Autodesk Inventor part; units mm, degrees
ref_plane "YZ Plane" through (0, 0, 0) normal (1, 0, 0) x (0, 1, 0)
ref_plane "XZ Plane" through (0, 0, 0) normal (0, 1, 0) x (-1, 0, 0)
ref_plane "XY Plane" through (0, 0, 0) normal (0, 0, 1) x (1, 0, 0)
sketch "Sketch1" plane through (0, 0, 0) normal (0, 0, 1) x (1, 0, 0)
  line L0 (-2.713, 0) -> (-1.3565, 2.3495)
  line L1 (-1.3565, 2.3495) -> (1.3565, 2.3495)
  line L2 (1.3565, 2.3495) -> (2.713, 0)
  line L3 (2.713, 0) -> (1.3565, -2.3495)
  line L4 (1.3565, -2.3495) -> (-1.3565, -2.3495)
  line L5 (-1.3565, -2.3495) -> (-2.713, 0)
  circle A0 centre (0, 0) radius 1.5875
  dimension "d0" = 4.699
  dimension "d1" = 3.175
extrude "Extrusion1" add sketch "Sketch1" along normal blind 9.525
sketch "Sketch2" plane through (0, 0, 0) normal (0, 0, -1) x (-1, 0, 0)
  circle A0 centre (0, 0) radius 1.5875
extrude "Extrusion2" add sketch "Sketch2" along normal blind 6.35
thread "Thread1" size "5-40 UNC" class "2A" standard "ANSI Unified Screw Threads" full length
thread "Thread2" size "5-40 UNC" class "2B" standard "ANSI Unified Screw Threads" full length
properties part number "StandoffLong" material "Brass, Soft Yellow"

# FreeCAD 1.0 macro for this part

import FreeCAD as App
import Part
import Sketcher

V = App.Vector
Q = App.Units.Quantity

doc = App.newDocument("Part")
body = doc.addObject("PartDesign::Body", "Body")
body.AllowCompound = True

sketch1 = body.newObject("Sketcher::SketchObject", "Sketch")
sketch1.AttachmentSupport = (doc.getObject("XY_Plane"), [""])
sketch1.MapMode = "FlatFace"
sketch1.addGeometry(Part.LineSegment(V(-1.4, 2.3, 0), V(-2.7, 0, 0)), False)
sketch1.addGeometry(Part.LineSegment(V(-2.7, 0, 0), V(-1.4, -2.3, 0)), False)
sketch1.addGeometry(Part.LineSegment(V(-1.4, -2.3, 0), V(1.4, -2.3, 0)), False)
sketch1.addGeometry(Part.LineSegment(V(1.4, -2.3, 0), V(2.7, 0, 0)), False)
sketch1.addGeometry(Part.LineSegment(V(2.7, 0, 0), V(1.4, 2.3, 0)), False)
sketch1.addGeometry(Part.LineSegment(V(1.4, 2.3, 0), V(-1.4, 2.3, 0)), False)
sketch1.addGeometry(Part.Circle(V(0, 0, 0), V(0, 0, 1), 1.6), False)
sketch1.addConstraint(Sketcher.Constraint("Coincident", 0, 2, 1, 1))
sketch1.addConstraint(Sketcher.Constraint("Coincident", 1, 2, 2, 1))
sketch1.addConstraint(Sketcher.Constraint("Coincident", 2, 2, 3, 1))
sketch1.addConstraint(Sketcher.Constraint("Coincident", 3, 2, 4, 1))
sketch1.addConstraint(Sketcher.Constraint("Coincident", 4, 2, 5, 1))
sketch1.addConstraint(Sketcher.Constraint("Coincident", 5, 2, 0, 1))
sketch1.addConstraint(Sketcher.Constraint("Horizontal", 2))
sketch1.addConstraint(Sketcher.Constraint("Horizontal", 5))
sketch1.addConstraint(Sketcher.Constraint("Coincident", 6, 3, -1, 1))
sketch1.addConstraint(Sketcher.Constraint("Symmetric", 0, 2, 3, 2, -1, 1))
sketch1.addConstraint(Sketcher.Constraint("Symmetric", 1, 2, 4, 2, -1, 1))
sketch1.addConstraint(Sketcher.Constraint("PointOnObject", 0, 2, -1))
sketch1.addConstraint(Sketcher.Constraint("Parallel", 0, 3))
sketch1.addConstraint(Sketcher.Constraint("Vertical", 2, 2, 4, 2))
sketch1.addConstraint(Sketcher.Constraint("Diameter", 6, Q("0.125 in")))
sketch1.addConstraint(Sketcher.Constraint("Angle", 0, Q("-120.0003 deg")))
sketch1.addConstraint(Sketcher.Constraint("DistanceY", 2, 2, 4, 2, Q("0.185 in")))
sketch1.addConstraint(Sketcher.Constraint("DistanceX", 2, 1, 2, 2, Q("0.1068 in")))
pad1 = body.newObject("PartDesign::Pad", "Pad")
pad1.Profile = sketch1
pad1.Length = Q("0.375 in")

sketch2 = body.newObject("Sketcher::SketchObject", "Sketch001")
sketch2.AttachmentSupport = (doc.getObject("XY_Plane"), [""])
sketch2.MapMode = "FlatFace"
sketch2.addGeometry(Part.Circle(V(0, 0, 0), V(0, 0, 1), 1.6), False)
sketch2.addConstraint(Sketcher.Constraint("Coincident", 0, 3, -1, 1))
sketch2.addConstraint(Sketcher.Constraint("Diameter", 0, Q("0.125 in")))
pad2 = body.newObject("PartDesign::Pad", "Pad001")
pad2.Profile = sketch2
pad2.Length = Q("0.25 in")
pad2.Reversed = True

doc.recompute()
